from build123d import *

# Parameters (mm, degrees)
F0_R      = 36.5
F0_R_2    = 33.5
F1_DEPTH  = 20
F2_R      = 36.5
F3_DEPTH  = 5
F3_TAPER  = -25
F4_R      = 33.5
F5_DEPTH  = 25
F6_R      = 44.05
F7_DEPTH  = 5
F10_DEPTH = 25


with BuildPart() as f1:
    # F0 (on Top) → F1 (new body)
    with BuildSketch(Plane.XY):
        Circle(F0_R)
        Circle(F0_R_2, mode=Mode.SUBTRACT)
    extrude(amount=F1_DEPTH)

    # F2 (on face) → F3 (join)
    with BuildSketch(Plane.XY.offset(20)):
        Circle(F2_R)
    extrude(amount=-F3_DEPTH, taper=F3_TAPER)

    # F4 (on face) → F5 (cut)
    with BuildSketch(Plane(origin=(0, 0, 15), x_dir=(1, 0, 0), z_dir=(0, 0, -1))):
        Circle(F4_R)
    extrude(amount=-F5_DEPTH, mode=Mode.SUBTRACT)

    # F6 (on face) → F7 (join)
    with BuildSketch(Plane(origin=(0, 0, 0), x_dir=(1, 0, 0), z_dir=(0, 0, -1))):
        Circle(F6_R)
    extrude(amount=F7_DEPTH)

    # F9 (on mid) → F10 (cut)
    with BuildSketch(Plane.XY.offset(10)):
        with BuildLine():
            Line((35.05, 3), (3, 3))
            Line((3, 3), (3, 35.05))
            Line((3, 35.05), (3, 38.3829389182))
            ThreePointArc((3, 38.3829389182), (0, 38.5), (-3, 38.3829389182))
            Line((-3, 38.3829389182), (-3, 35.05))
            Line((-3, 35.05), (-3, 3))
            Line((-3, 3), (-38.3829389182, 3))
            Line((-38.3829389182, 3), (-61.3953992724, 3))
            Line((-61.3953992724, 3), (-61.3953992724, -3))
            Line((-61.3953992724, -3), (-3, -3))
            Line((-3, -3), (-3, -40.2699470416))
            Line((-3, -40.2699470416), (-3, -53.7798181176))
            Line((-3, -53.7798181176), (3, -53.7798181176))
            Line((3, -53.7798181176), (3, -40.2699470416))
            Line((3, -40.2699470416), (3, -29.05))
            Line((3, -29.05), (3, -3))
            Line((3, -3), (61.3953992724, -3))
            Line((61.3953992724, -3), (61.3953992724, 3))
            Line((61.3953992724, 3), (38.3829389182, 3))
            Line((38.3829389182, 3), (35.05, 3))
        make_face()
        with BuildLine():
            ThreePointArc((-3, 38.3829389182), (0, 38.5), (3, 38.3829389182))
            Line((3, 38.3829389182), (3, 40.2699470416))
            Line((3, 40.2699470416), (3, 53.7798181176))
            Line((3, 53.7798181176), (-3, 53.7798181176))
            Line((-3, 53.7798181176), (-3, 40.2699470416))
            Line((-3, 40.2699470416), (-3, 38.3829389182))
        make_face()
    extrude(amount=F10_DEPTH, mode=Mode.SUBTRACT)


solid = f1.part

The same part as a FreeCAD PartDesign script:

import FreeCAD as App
import Part
import Sketcher
from FreeCAD import Vector
Q = App.Units.Quantity

doc = App.newDocument("Part")
params = doc.addObject("Spreadsheet::Sheet", "Params")
for row, (alias, value) in enumerate([
    ("sketch1_diameter", "73 mm"),
    ("sketch1_diameter2", "67 mm"),
    ("pad1_length", "20 mm"),
    ("sketch2_diameter", "73 mm"),
    ("pad2_length", "5 mm"),
    ("pad2_taper", "25 deg"),
    ("sketch3_diameter", "67 mm"),
    ("pocket1_length", "25 mm"),
    ("sketch4_diameter", "88.1 mm"),
    ("pad3_length", "5 mm"),
    ("sketch5_width", "6 mm"),
    ("pocket2_length", "25 mm"),
], start=1):
    params.set(f"A{row}", alias)
    params.set(f"B{row}", "=" + value)
    params.setAlias(f"B{row}", alias)

body = doc.addObject("PartDesign::Body", "Body")

# Sketch on XY plane
sketch1 = doc.addObject("Sketcher::SketchObject", "Sketch")
body.addObject(sketch1)
sketch1.AttachmentSupport = (doc.XY_Plane, [""])
sketch1.MapMode = "FlatFace"
sketch1.addGeometry([
    Part.Circle(Vector(0, 0, 0), Vector(0, 0, 1), 36),
    Part.Circle(Vector(0, 0, 0), Vector(0, 0, 1), 34),
], False)
sketch1.addConstraint([
    Sketcher.Constraint("Coincident", 0, 3, -1, 1),
    Sketcher.Constraint("Coincident", 1, 3, -1, 1),
    Sketcher.Constraint("Diameter", 0, Q("73 mm")),
    Sketcher.Constraint("Diameter", 1, Q("67 mm")),
])
sketch1.setExpression("Constraints[2]", "Params.sketch1_diameter")
sketch1.setExpression("Constraints[3]", "Params.sketch1_diameter2")
pad1 = doc.addObject("PartDesign::Pad", "Pad")
body.addObject(pad1)
pad1.Profile = sketch1
pad1.setExpression("Length", "Params.pad1_length")

# Sketch on XY plane
sketch2 = doc.addObject("Sketcher::SketchObject", "Sketch001")
body.addObject(sketch2)
sketch2.AttachmentSupport = (doc.XY_Plane, [""])
sketch2.MapMode = "FlatFace"
sketch2.AttachmentOffset = App.Placement(Vector(0, 0, 20), App.Rotation())
sketch2.addGeometry(Part.Circle(Vector(0, 0, 0), Vector(0, 0, 1), 36), False)
sketch2.addConstraint([
    Sketcher.Constraint("Coincident", 0, 3, -1, 1),
    Sketcher.Constraint("Diameter", 0, Q("73 mm")),
])
sketch2.setExpression("Constraints[1]", "Params.sketch2_diameter")
pad2 = doc.addObject("PartDesign::Pad", "Pad001")
body.addObject(pad2)
pad2.Profile = sketch2
pad2.setExpression("Length", "Params.pad2_length")
pad2.Reversed = True
pad2.setExpression("TaperAngle", "Params.pad2_taper")

# Sketch on XY plane
sketch3 = doc.addObject("Sketcher::SketchObject", "Sketch002")
body.addObject(sketch3)
sketch3.AttachmentSupport = (doc.XY_Plane, [""])
sketch3.MapMode = "FlatFace"
sketch3.AttachmentOffset = App.Placement(Vector(0, 0, 15), App.Rotation())
sketch3.addGeometry(Part.Circle(Vector(0, 0, 0), Vector(0, 0, 1), 34), False)
sketch3.addConstraint([
    Sketcher.Constraint("Coincident", 0, 3, -1, 1),
    Sketcher.Constraint("Diameter", 0, Q("67 mm")),
])
sketch3.setExpression("Constraints[1]", "Params.sketch3_diameter")
pocket1 = doc.addObject("PartDesign::Pocket", "Pocket")
body.addObject(pocket1)
pocket1.Profile = sketch3
pocket1.setExpression("Length", "Params.pocket1_length")
pocket1.Reversed = True

# Sketch on XY plane
sketch4 = doc.addObject("Sketcher::SketchObject", "Sketch003")
body.addObject(sketch4)
sketch4.AttachmentSupport = (doc.XY_Plane, [""])
sketch4.MapMode = "FlatFace"
sketch4.addGeometry(Part.Circle(Vector(0, 0, 0), Vector(0, 0, 1), 44), False)
sketch4.addConstraint([
    Sketcher.Constraint("Coincident", 0, 3, -1, 1),
    Sketcher.Constraint("Diameter", 0, Q("88.1 mm")),
])
sketch4.setExpression("Constraints[1]", "Params.sketch4_diameter")
pad3 = doc.addObject("PartDesign::Pad", "Pad002")
body.addObject(pad3)
pad3.Profile = sketch4
pad3.setExpression("Length", "Params.pad3_length")
pad3.Reversed = True

# Sketch on XY plane
sketch5 = doc.addObject("Sketcher::SketchObject", "Sketch004")
body.addObject(sketch5)
sketch5.AttachmentSupport = (doc.XY_Plane, [""])
sketch5.MapMode = "FlatFace"
sketch5.AttachmentOffset = App.Placement(Vector(0, 0, 10), App.Rotation())
sketch5.addGeometry([
    Part.LineSegment(Vector(3, 3, 0), Vector(3, 54, 0)),  # 0
    Part.LineSegment(Vector(3, 54, 0), Vector(-3, 54, 0)),  # 1
    Part.LineSegment(Vector(-3, 54, 0), Vector(-3, 3, 0)),  # 2
    Part.LineSegment(Vector(-3, 3, 0), Vector(-61, 3, 0)),  # 3
    Part.LineSegment(Vector(-61, 3, 0), Vector(-61, -3, 0)),  # 4
    Part.LineSegment(Vector(-61, -3, 0), Vector(-3, -3, 0)),  # 5
    Part.LineSegment(Vector(-3, -3, 0), Vector(-3, -54, 0)),  # 6
    Part.LineSegment(Vector(-3, -54, 0), Vector(3, -54, 0)),  # 7
    Part.LineSegment(Vector(3, -54, 0), Vector(3, -3, 0)),  # 8
    Part.LineSegment(Vector(3, -3, 0), Vector(61, -3, 0)),  # 9
    Part.LineSegment(Vector(61, -3, 0), Vector(61, 3, 0)),  # 10
    Part.LineSegment(Vector(61, 3, 0), Vector(3, 3, 0)),  # 11
], False)
sketch5.addConstraint([
    Sketcher.Constraint("Coincident", 0, 2, 1, 1),
    Sketcher.Constraint("Coincident", 1, 2, 2, 1),
    Sketcher.Constraint("Coincident", 2, 2, 3, 1),
    Sketcher.Constraint("Coincident", 3, 2, 4, 1),
    Sketcher.Constraint("Coincident", 4, 2, 5, 1),
    Sketcher.Constraint("Coincident", 5, 2, 6, 1),
    Sketcher.Constraint("Coincident", 6, 2, 7, 1),
    Sketcher.Constraint("Coincident", 7, 2, 8, 1),
    Sketcher.Constraint("Coincident", 8, 2, 9, 1),
    Sketcher.Constraint("Coincident", 9, 2, 10, 1),
    Sketcher.Constraint("Coincident", 10, 2, 11, 1),
    Sketcher.Constraint("Coincident", 11, 2, 0, 1),
    Sketcher.Constraint("Vertical", 0),
    Sketcher.Constraint("Horizontal", 1),
    Sketcher.Constraint("Vertical", 2),
    Sketcher.Constraint("Horizontal", 3),
    Sketcher.Constraint("Vertical", 4),
    Sketcher.Constraint("Horizontal", 5),
    Sketcher.Constraint("Vertical", 6),
    Sketcher.Constraint("Horizontal", 7),
    Sketcher.Constraint("Vertical", 8),
    Sketcher.Constraint("Horizontal", 9),
    Sketcher.Constraint("Vertical", 10),
    Sketcher.Constraint("Horizontal", 11),
    Sketcher.Constraint("Symmetric", 0, 2, 6, 2, -1, 1),
    Sketcher.Constraint("Symmetric", 2, 2, 8, 2, -1, 1),
    Sketcher.Constraint("Symmetric", 4, 2, 10, 2, -1, 1),
    Sketcher.Constraint("Symmetric", 5, 2, 8, 2, -2),
    Sketcher.Constraint("Equal", 7, 4),
    Sketcher.Constraint("DistanceX", 1, 2, 1, 1, Q("6 mm")),
    Sketcher.Constraint("DistanceX", 3, 2, 3, 1, Q("58.395399 mm")),
    Sketcher.Constraint("DistanceY", 0, 1, 0, 2, Q("50.779818 mm")),
])
sketch5.setExpression("Constraints[29]", "Params.sketch5_width")
pocket2 = doc.addObject("PartDesign::Pocket", "Pocket001")
body.addObject(pocket2)
pocket2.Profile = sketch5
pocket2.setExpression("Length", "Params.pocket2_length")
pocket2.Reversed = True

doc.recompute()
